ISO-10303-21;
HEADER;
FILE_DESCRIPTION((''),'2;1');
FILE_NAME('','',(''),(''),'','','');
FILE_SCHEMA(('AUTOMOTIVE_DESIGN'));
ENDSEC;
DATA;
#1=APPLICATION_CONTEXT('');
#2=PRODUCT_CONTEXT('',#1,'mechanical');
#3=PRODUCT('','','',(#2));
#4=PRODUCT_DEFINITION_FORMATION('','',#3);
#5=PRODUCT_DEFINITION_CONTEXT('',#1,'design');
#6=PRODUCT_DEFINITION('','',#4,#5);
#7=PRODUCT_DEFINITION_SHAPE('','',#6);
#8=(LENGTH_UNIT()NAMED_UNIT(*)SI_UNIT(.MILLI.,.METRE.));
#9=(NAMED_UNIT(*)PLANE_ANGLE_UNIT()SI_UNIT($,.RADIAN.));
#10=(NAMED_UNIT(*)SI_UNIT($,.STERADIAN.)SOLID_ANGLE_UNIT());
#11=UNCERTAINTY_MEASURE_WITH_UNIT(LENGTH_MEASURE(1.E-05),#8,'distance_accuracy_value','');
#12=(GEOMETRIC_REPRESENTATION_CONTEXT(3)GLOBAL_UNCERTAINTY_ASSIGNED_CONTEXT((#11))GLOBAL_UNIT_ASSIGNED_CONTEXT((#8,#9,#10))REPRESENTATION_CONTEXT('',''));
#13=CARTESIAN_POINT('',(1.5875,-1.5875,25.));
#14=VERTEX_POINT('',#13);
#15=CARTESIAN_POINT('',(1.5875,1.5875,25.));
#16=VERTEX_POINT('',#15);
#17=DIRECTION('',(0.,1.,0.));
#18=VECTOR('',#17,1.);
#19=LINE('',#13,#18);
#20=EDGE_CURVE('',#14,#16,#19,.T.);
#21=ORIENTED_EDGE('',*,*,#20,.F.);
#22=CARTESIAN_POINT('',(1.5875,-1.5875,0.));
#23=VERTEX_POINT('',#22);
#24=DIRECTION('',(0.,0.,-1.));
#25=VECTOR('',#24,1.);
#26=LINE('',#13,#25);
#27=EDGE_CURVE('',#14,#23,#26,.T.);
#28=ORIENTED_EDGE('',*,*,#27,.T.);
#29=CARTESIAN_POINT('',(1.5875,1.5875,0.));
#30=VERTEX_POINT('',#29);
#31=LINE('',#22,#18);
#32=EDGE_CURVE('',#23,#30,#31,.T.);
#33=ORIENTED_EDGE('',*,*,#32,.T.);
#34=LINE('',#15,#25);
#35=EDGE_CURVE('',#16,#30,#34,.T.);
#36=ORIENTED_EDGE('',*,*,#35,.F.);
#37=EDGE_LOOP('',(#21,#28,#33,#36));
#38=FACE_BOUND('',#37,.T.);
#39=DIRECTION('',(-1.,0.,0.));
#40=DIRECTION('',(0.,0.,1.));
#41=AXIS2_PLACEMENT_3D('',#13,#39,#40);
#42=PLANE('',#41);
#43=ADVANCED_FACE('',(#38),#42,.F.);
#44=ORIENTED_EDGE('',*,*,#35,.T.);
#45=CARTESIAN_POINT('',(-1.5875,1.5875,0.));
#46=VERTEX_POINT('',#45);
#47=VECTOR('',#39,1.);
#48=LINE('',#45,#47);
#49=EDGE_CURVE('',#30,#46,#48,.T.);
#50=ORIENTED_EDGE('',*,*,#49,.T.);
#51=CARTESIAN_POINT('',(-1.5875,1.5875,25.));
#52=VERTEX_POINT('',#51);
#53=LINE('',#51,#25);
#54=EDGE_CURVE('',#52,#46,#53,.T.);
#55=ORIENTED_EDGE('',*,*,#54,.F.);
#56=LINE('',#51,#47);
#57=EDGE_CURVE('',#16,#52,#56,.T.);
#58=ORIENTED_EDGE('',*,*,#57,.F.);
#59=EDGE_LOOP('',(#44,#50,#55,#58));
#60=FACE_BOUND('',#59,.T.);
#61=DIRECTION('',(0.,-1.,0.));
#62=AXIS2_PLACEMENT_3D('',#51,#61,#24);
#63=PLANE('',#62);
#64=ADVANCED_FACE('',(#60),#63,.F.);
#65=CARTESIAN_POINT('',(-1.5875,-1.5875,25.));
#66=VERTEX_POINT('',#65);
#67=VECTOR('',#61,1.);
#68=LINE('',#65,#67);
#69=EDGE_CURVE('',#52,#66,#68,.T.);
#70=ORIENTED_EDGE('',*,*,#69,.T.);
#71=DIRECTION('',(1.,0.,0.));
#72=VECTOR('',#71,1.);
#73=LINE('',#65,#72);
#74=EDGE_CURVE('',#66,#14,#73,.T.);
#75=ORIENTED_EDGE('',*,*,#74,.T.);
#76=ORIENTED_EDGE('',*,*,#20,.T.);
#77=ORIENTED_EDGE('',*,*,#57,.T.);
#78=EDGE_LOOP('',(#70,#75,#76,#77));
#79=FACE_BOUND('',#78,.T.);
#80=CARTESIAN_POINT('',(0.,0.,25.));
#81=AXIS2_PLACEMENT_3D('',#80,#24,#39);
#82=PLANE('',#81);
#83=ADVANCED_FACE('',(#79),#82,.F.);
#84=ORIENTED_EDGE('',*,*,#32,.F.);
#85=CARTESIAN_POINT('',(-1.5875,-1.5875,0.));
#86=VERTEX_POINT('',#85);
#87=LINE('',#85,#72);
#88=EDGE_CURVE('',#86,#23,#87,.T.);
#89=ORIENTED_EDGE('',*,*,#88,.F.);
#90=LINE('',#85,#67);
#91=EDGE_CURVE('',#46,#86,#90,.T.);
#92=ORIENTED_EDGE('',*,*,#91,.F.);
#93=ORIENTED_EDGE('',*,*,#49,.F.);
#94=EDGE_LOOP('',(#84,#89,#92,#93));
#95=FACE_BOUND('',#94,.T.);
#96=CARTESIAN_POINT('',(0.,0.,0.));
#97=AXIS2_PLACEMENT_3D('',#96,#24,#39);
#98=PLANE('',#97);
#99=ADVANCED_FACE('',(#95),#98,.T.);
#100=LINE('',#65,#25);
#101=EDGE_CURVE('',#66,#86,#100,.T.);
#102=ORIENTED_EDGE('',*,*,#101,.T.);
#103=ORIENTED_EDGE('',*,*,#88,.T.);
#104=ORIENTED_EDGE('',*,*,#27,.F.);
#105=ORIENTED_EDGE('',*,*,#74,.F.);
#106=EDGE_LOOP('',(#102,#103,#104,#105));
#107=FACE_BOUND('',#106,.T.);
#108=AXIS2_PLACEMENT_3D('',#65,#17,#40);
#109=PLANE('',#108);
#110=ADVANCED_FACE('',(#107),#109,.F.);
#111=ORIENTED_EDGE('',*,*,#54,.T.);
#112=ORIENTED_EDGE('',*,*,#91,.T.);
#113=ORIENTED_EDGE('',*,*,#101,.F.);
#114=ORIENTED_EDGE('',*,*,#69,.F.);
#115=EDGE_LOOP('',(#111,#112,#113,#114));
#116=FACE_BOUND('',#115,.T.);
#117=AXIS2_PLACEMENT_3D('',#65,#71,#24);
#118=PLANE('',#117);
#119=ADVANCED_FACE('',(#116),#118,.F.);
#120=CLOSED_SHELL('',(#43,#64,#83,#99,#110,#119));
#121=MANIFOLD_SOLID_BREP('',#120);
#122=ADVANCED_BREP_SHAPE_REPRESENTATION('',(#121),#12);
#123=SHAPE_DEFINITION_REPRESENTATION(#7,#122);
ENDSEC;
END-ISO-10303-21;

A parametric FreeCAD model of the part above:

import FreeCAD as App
import Part
import Sketcher
from FreeCAD import Vector

doc = App.newDocument("Part")
params = doc.addObject("Spreadsheet::Sheet", "Params")
for row, (alias, value) in enumerate([
    ("pad1_length", "25 mm"),
], start=1):
    params.set(f"A{row}", alias)
    params.set(f"B{row}", "=" + value)
    params.setAlias(f"B{row}", alias)

body = doc.addObject("PartDesign::Body", "Body")

sketch1 = body.newObject("Sketcher::SketchObject", "Sketch")
sketch1.AttachmentSupport = (doc.getObject("XY_Plane"), [""])
sketch1.MapMode = "FlatFace"
sketch1.addGeometry(Part.LineSegment(Vector(-1.6, 1.6, 0), Vector(-1.6, -1.6, 0)), False)
sketch1.addGeometry(Part.LineSegment(Vector(-1.6, -1.6, 0), Vector(1.6, -1.6, 0)), False)
sketch1.addGeometry(Part.LineSegment(Vector(1.6, -1.6, 0), Vector(1.6, 1.6, 0)), False)
sketch1.addGeometry(Part.LineSegment(Vector(1.6, 1.6, 0), Vector(-1.6, 1.6, 0)), False)
sketch1.addConstraint(Sketcher.Constraint("Coincident", 0, 2, 1, 1))
sketch1.addConstraint(Sketcher.Constraint("Coincident", 1, 2, 2, 1))
sketch1.addConstraint(Sketcher.Constraint("Coincident", 2, 2, 3, 1))
sketch1.addConstraint(Sketcher.Constraint("Coincident", 3, 2, 0, 1))
sketch1.addConstraint(Sketcher.Constraint("Vertical", 0))
sketch1.addConstraint(Sketcher.Constraint("Horizontal", 1))
sketch1.addConstraint(Sketcher.Constraint("Vertical", 2))
sketch1.addConstraint(Sketcher.Constraint("Horizontal", 3))
sketch1.addConstraint(Sketcher.Constraint("Symmetric", 0, 2, 2, 2, -1, 1))
sketch1.addConstraint(Sketcher.Constraint("Equal", 3, 0))
sketch1.addConstraint(Sketcher.Constraint("DistanceX", 1, 1, 1, 2, 3.175))
pad1 = body.newObject("PartDesign::Pad", "Pad")
pad1.Profile = sketch1
pad1.setExpression("Length", "Params.pad1_length")

doc.recompute()
